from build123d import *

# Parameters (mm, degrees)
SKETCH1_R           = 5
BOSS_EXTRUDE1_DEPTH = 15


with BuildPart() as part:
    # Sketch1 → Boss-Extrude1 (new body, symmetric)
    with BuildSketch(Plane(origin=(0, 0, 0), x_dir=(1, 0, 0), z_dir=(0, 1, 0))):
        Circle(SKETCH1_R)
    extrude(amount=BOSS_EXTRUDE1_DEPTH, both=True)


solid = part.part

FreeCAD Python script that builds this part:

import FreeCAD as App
import Part
import Sketcher

V = App.Vector
Q = App.Units.Quantity

doc = App.newDocument("Part")
body = doc.addObject("PartDesign::Body", "Body")

# Sketch on XZ plane
sketch1 = body.newObject("Sketcher::SketchObject", "Sketch")
sketch1.AttachmentSupport = (doc.getObject("XZ_Plane"), [""])
sketch1.MapMode = "FlatFace"
sketch1.addGeometry(Part.Circle(V(0, 0, 0), V(0, 0, 1), 5), False)
sketch1.addConstraint(Sketcher.Constraint("Coincident", 0, 3, -1, 1))
sketch1.addConstraint(Sketcher.Constraint("Diameter", 0, Q("10 mm")))
pad1 = body.newObject("PartDesign::Pad", "Pad")
pad1.Profile = sketch1
pad1.Length = 30
pad1.Midplane = True

doc.recompute()
